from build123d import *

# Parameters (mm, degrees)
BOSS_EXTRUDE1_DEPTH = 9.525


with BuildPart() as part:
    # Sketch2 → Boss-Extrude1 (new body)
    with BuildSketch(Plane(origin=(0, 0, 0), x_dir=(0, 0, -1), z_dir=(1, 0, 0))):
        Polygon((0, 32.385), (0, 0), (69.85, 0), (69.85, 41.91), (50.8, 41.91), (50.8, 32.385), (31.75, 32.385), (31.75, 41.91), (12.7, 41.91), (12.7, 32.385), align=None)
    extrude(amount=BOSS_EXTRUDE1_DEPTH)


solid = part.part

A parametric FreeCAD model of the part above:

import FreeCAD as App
import Part
import Sketcher

V = App.Vector
Q = App.Units.Quantity


def add_polygon(sketch, points):
    """Adds a closed chain of lines whose ends are joined by coincident constraints."""
    first, n = sketch.GeometryCount, len(points)
    for a, b in zip(points, points[1:] + points[:1]):
        sketch.addGeometry(Part.LineSegment(App.Vector(*a, 0), App.Vector(*b, 0)), False)
    for i in range(n):
        sketch.addConstraint(Sketcher.Constraint("Coincident", first + i, 2, first + (i + 1) % n, 1))

doc = App.newDocument("Part")
params = doc.addObject("Spreadsheet::Sheet", "Params")
for row, (alias, value) in enumerate([
    ("sketch1_height", "0.5 in"),
    ("sketch1_width", "1.65 in"),
    ("sketch1_width2", "1.275 in"),
    ("pad1_length", "0.375 in"),
], start=1):
    params.set(f"A{row}", alias)
    params.set(f"B{row}", "=" + value)
    params.setAlias(f"B{row}", alias)

body = doc.addObject("PartDesign::Body", "Body")

sketch1 = doc.addObject("Sketcher::SketchObject", "Sketch")
body.addObject(sketch1)
sketch1.AttachmentSupport = (doc.YZ_Plane, [""])
sketch1.MapMode = "FlatFace"
add_polygon(sketch1, [(32, 0), (0, 0), (0, -70), (42, -70), (42, -51), (32, -51), (32, -32), (42, -32), (42, -13), (32, -13)])
sketch1.addConstraint(Sketcher.Constraint("Horizontal", 0))
sketch1.addConstraint(Sketcher.Constraint("Vertical", 1))
sketch1.addConstraint(Sketcher.Constraint("Horizontal", 2))
sketch1.addConstraint(Sketcher.Constraint("Vertical", 3))
sketch1.addConstraint(Sketcher.Constraint("Horizontal", 4))
sketch1.addConstraint(Sketcher.Constraint("Vertical", 5))
sketch1.addConstraint(Sketcher.Constraint("Horizontal", 6))
sketch1.addConstraint(Sketcher.Constraint("Vertical", 7))
sketch1.addConstraint(Sketcher.Constraint("Horizontal", 8))
sketch1.addConstraint(Sketcher.Constraint("Vertical", 9))
sketch1.addConstraint(Sketcher.Constraint("Coincident", 0, 2, -1, 1))
sketch1.addConstraint(Sketcher.Constraint("Vertical", 3, 2, 6, 2))
sketch1.addConstraint(Sketcher.Constraint("Vertical", 5, 2, 8, 2))
sketch1.addConstraint(Sketcher.Constraint("Equal", 3, 5))
sketch1.addConstraint(Sketcher.Constraint("Equal", 5, 7))
sketch1.addConstraint(Sketcher.Constraint("DistanceY", 9, 1, 9, 2, Q("0.5 in")))
sketch1.addConstraint(Sketcher.Constraint("DistanceY", 3, 2, -1, 1, Q("2 in")))
sketch1.addConstraint(Sketcher.Constraint("DistanceX", 2, 1, 2, 2, Q("1.65 in")))
sketch1.addConstraint(Sketcher.Constraint("DistanceX", 0, 2, 0, 1, Q("1.275 in")))
sketch1.setExpression("Constraints[25]", "Params.sketch1_height")
sketch1.setExpression("Constraints[27]", "Params.sketch1_width")
sketch1.setExpression("Constraints[28]", "Params.sketch1_width2")
pad1 = doc.addObject("PartDesign::Pad", "Pad")
body.addObject(pad1)
pad1.Profile = sketch1
pad1.setExpression("Length", "Params.pad1_length")

doc.recompute()
